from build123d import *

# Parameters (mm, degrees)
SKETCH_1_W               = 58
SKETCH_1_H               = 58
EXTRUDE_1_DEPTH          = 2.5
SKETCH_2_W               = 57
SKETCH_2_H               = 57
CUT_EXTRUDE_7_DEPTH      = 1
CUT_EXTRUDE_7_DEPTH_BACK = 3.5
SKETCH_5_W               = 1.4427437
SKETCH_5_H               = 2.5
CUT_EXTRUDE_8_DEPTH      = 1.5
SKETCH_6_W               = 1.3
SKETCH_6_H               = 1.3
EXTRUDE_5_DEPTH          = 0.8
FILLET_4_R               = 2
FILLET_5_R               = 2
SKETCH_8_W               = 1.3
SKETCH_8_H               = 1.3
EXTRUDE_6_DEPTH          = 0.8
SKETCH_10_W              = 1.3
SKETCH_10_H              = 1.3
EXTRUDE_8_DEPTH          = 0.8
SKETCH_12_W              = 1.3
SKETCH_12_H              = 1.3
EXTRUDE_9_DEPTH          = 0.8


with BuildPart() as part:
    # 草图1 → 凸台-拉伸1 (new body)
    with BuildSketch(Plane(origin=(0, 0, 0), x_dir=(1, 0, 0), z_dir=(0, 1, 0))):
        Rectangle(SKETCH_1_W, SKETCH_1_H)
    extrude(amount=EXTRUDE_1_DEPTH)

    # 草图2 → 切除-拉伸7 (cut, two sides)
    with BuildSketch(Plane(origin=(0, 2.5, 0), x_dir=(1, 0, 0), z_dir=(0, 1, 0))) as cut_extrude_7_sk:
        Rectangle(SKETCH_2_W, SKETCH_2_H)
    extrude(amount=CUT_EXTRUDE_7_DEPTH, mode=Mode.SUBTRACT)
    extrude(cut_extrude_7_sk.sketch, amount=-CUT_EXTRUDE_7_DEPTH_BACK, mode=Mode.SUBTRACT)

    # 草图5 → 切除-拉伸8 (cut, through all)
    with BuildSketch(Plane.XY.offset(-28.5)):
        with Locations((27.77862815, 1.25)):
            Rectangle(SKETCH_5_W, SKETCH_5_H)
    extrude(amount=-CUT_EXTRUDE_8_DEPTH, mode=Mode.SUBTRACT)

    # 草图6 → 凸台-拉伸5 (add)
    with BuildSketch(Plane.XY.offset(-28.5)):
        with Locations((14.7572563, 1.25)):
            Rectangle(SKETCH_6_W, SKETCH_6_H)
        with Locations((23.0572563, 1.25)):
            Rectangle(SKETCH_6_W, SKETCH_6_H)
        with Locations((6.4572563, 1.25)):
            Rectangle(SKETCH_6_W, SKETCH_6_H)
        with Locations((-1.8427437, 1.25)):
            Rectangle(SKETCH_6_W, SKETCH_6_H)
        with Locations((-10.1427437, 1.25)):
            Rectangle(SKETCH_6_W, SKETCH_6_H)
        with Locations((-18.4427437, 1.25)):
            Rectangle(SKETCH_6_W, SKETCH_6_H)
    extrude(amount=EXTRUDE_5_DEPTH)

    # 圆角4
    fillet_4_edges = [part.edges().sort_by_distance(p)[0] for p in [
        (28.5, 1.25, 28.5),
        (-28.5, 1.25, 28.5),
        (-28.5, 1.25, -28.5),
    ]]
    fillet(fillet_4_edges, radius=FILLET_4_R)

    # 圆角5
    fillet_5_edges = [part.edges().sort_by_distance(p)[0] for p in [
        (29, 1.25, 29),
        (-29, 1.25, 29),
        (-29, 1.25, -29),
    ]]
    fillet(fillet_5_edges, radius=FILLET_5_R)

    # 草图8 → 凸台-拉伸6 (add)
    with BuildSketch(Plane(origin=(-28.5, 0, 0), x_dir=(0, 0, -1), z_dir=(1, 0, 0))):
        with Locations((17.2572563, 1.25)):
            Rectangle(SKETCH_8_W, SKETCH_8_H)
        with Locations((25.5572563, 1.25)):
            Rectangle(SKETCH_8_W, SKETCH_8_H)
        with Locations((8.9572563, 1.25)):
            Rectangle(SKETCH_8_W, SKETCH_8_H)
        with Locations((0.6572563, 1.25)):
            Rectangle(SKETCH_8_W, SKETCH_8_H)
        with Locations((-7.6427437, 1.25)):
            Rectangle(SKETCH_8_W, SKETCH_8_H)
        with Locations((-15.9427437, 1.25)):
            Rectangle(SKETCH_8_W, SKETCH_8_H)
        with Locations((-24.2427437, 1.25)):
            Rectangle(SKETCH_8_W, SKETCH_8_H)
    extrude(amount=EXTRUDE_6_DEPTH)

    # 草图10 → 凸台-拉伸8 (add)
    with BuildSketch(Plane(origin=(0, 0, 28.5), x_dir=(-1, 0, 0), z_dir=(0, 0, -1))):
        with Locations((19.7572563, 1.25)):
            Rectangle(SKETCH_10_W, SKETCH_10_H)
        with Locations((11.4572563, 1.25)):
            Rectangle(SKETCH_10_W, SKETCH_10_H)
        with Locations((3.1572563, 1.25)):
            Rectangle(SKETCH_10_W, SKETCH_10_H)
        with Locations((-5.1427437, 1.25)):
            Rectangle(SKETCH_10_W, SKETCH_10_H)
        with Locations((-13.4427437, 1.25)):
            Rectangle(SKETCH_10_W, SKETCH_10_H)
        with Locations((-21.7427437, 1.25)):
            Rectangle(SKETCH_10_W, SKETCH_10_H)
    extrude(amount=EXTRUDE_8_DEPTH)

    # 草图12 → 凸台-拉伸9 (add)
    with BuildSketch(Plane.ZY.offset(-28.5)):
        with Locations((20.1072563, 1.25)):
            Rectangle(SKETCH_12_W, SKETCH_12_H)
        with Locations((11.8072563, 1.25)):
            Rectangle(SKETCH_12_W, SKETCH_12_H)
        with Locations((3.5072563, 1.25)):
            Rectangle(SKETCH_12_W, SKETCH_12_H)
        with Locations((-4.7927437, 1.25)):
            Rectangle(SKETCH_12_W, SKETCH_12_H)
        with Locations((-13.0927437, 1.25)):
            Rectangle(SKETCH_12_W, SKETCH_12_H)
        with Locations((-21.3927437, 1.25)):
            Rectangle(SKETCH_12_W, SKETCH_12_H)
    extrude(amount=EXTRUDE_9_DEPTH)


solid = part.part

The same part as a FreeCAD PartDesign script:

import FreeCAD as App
import Part
import Sketcher
from FreeCAD import Vector
Q = App.Units.Quantity


def edges_at(feature, points):
    """Names of the edges that pass closest to the given points."""
    edges = feature.Shape.Edges
    near = lambda p: min(range(len(edges)), key=lambda i: edges[i].distToShape(Part.Vertex(*p))[0])
    return sorted({f"Edge{near(p) + 1}" for p in points})


def add_polygon(sketch, points):
    """Adds a closed chain of lines whose ends are joined by coincident constraints."""
    first, n = sketch.GeometryCount, len(points)
    for a, b in zip(points, points[1:] + points[:1]):
        sketch.addGeometry(Part.LineSegment(App.Vector(*a, 0), App.Vector(*b, 0)), False)
    for i in range(n):
        sketch.addConstraint(Sketcher.Constraint("Coincident", first + i, 2, first + (i + 1) % n, 1))

doc = App.newDocument("Part")
body = doc.addObject("PartDesign::Body", "Body")

sketch1 = body.newObject("Sketcher::SketchObject", "Sketch")
sketch1.AttachmentSupport = (doc.getObject("XZ_Plane"), [""])
sketch1.MapMode = "FlatFace"
add_polygon(sketch1, [(-29, -29), (-29, 29), (29, 29), (29, -29)])
sketch1.addConstraint([
    Sketcher.Constraint("Vertical", 0),
    Sketcher.Constraint("Horizontal", 1),
    Sketcher.Constraint("Vertical", 2),
    Sketcher.Constraint("Horizontal", 3),
    Sketcher.Constraint("Symmetric", 0, 2, 2, 2, -1, 1),
    Sketcher.Constraint("Equal", 3, 0),
    Sketcher.Constraint("DistanceX", 1, 1, 1, 2, Q("58 mm")),
])
pad1 = body.newObject("PartDesign::Pad", "Pad")
pad1.Profile = sketch1
pad1.Length = 2.5
pad1.Reversed = True

sketch2 = body.newObject("Sketcher::SketchObject", "Sketch001")
sketch2.AttachmentSupport = (doc.getObject("XZ_Plane"), [""])
sketch2.MapMode = "FlatFace"
sketch2.AttachmentOffset = App.Placement(Vector(0, 0, -2.5), App.Rotation())
add_polygon(sketch2, [(-28.5, -28.5), (-28.5, 28.5), (28.5, 28.5), (28.5, -28.5)])
sketch2.addConstraint([
    Sketcher.Constraint("Vertical", 0),
    Sketcher.Constraint("Horizontal", 1),
    Sketcher.Constraint("Vertical", 2),
    Sketcher.Constraint("Horizontal", 3),
    Sketcher.Constraint("Symmetric", 0, 2, 2, 2, -1, 1),
    Sketcher.Constraint("Equal", 3, 0),
    Sketcher.Constraint("DistanceX", 1, 1, 1, 2, Q("57 mm")),
])
pocket1 = body.newObject("PartDesign::Pocket", "Pocket")
pocket1.Profile = sketch2
pocket1.Type = "ThroughAll"
pocket1.Midplane = True

sketch3 = body.newObject("Sketcher::SketchObject", "Sketch002")
sketch3.AttachmentSupport = (doc.getObject("XY_Plane"), [""])
sketch3.MapMode = "FlatFace"
sketch3.AttachmentOffset = App.Placement(Vector(0, 0, -28.5), App.Rotation())
add_polygon(sketch3, [(27.057256, 2.5), (27.057256, 0), (28.5, 0), (28.5, 2.5)])
sketch3.addConstraint([
    Sketcher.Constraint("Vertical", 0),
    Sketcher.Constraint("Horizontal", 1),
    Sketcher.Constraint("Vertical", 2),
    Sketcher.Constraint("Horizontal", 3),
    Sketcher.Constraint("PointOnObject", 0, 2, -1),
    Sketcher.Constraint("DistanceY", 0, 2, 0, 1, Q("2.5 mm")),
    Sketcher.Constraint("DistanceX", -1, 1, 1, 2, Q("28.5 mm")),
    Sketcher.Constraint("DistanceX", 1, 1, 1, 2, Q("1.442744 mm")),
])
pocket2 = body.newObject("PartDesign::Pocket", "Pocket001")
pocket2.Profile = sketch3
pocket2.Type = "ThroughAll"

sketch4 = body.newObject("Sketcher::SketchObject", "Sketch003")
sketch4.AttachmentSupport = (doc.getObject("XY_Plane"), [""])
sketch4.MapMode = "FlatFace"
sketch4.AttachmentOffset = App.Placement(Vector(0, 0, -28.5), App.Rotation())
add_polygon(sketch4, [(14.107256, 1.9), (14.107256, 0.6), (15.407256, 0.6), (15.407256, 1.9)])
add_polygon(sketch4, [(22.407256, 1.9), (22.407256, 0.6), (23.707256, 0.6), (23.707256, 1.9)])
add_polygon(sketch4, [(5.807256, 1.9), (5.807256, 0.6), (7.107256, 0.6), (7.107256, 1.9)])
add_polygon(sketch4, [(-2.492744, 1.9), (-2.492744, 0.6), (-1.192744, 0.6), (-1.192744, 1.9)])
add_polygon(sketch4, [(-10.792744, 1.9), (-10.792744, 0.6), (-9.492744, 0.6), (-9.492744, 1.9)])
add_polygon(sketch4, [(-19.092744, 1.9), (-19.092744, 0.6), (-17.792744, 0.6), (-17.792744, 1.9)])
sketch4.addConstraint([
    Sketcher.Constraint("Vertical", 0),
    Sketcher.Constraint("Horizontal", 1),
    Sketcher.Constraint("Vertical", 2),
    Sketcher.Constraint("Horizontal", 3),
    Sketcher.Constraint("Vertical", 4),
    Sketcher.Constraint("Horizontal", 5),
    Sketcher.Constraint("Vertical", 6),
    Sketcher.Constraint("Horizontal", 7),
    Sketcher.Constraint("Vertical", 8),
    Sketcher.Constraint("Horizontal", 9),
    Sketcher.Constraint("Vertical", 10),
    Sketcher.Constraint("Horizontal", 11),
    Sketcher.Constraint("Vertical", 12),
    Sketcher.Constraint("Horizontal", 13),
    Sketcher.Constraint("Vertical", 14),
    Sketcher.Constraint("Horizontal", 15),
    Sketcher.Constraint("Vertical", 16),
    Sketcher.Constraint("Horizontal", 17),
    Sketcher.Constraint("Vertical", 18),
    Sketcher.Constraint("Horizontal", 19),
    Sketcher.Constraint("Vertical", 20),
    Sketcher.Constraint("Horizontal", 21),
    Sketcher.Constraint("Vertical", 22),
    Sketcher.Constraint("Horizontal", 23),
    Sketcher.Constraint("Horizontal", 1, 2, 4, 2),
    Sketcher.Constraint("Horizontal", 3, 2, 6, 2),
    Sketcher.Constraint("Horizontal", 5, 2, 8, 2),
    Sketcher.Constraint("Horizontal", 7, 2, 10, 2),
    Sketcher.Constraint("Horizontal", 9, 2, 12, 2),
    Sketcher.Constraint("Horizontal", 11, 2, 14, 2),
    Sketcher.Constraint("Horizontal", 13, 2, 16, 2),
    Sketcher.Constraint("Horizontal", 15, 2, 18, 2),
    Sketcher.Constraint("Horizontal", 17, 2, 20, 2),
    Sketcher.Constraint("Horizontal", 19, 2, 22, 2),
    Sketcher.Constraint("Equal", 3, 5),
    Sketcher.Constraint("Equal", 7, 9),
    Sketcher.Constraint("Equal", 11, 13),
    Sketcher.Constraint("Equal", 15, 17),
    Sketcher.Constraint("Equal", 19, 21),
    Sketcher.Constraint("Equal", 23, 0),
    Sketcher.Constraint("DistanceX", 1, 1, 1, 2, Q("1.3 mm")),
    Sketcher.Constraint("DistanceX", 1, 2, 4, 2, Q("7 mm")),
    Sketcher.Constraint("DistanceX", 9, 2, 0, 2, Q("7 mm")),
    Sketcher.Constraint("DistanceX", 13, 2, 8, 2, Q("7 mm")),
    Sketcher.Constraint("DistanceX", 17, 2, 12, 2, Q("7 mm")),
    Sketcher.Constraint("DistanceX", 21, 2, 16, 2, Q("7 mm")),
    Sketcher.Constraint("DistanceY", -1, 1, 0, 2, Q("0.6 mm")),
    Sketcher.Constraint("DistanceX", -1, 1, 0, 2, Q("14.107256 mm")),
])
pad2 = body.newObject("PartDesign::Pad", "Pad001")
pad2.Profile = sketch4
pad2.Length = 0.8
doc.recompute()

fillet = body.newObject("PartDesign::Fillet", "Fillet")
fillet.Base = (pad2, edges_at(pad2, [(28.5, 1.25, 28.5), (-28.5, 1.25, 28.5), (-28.5, 1.25, -28.5)]))
fillet.Radius = 2
doc.recompute()

fillet2 = body.newObject("PartDesign::Fillet", "Fillet001")
fillet2.Base = (fillet, edges_at(fillet, [(29, 1.25, 29), (-29, 1.25, 29), (-29, 1.25, -29)]))
fillet2.Radius = 2

sketch5 = body.newObject("Sketcher::SketchObject", "Sketch004")
sketch5.AttachmentSupport = (doc.getObject("YZ_Plane"), [""])
sketch5.MapMode = "FlatFace"
sketch5.AttachmentOffset = App.Placement(Vector(0, 0, -28.5), App.Rotation())
add_polygon(sketch5, [(1.9, -16.607256), (0.6, -16.607256), (0.6, -17.907256), (1.9, -17.907256)])
add_polygon(sketch5, [(1.9, -24.907256), (0.6, -24.907256), (0.6, -26.207256), (1.9, -26.207256)])
add_polygon(sketch5, [(1.9, -8.307256), (0.6, -8.307256), (0.6, -9.607256), (1.9, -9.607256)])
add_polygon(sketch5, [(1.9, -0.007256), (0.6, -0.007256), (0.6, -1.307256), (1.9, -1.307256)])
add_polygon(sketch5, [(1.9, 8.292744), (0.6, 8.292744), (0.6, 6.992744), (1.9, 6.992744)])
add_polygon(sketch5, [(1.9, 16.592744), (0.6, 16.592744), (0.6, 15.292744), (1.9, 15.292744)])
add_polygon(sketch5, [(1.9, 24.892744), (0.6, 24.892744), (0.6, 23.592744), (1.9, 23.592744)])
sketch5.addConstraint([
    Sketcher.Constraint("Horizontal", 0),
    Sketcher.Constraint("Vertical", 1),
    Sketcher.Constraint("Horizontal", 2),
    Sketcher.Constraint("Vertical", 3),
    Sketcher.Constraint("Horizontal", 4),
    Sketcher.Constraint("Vertical", 5),
    Sketcher.Constraint("Horizontal", 6),
    Sketcher.Constraint("Vertical", 7),
    Sketcher.Constraint("Horizontal", 8),
    Sketcher.Constraint("Vertical", 9),
    Sketcher.Constraint("Horizontal", 10),
    Sketcher.Constraint("Vertical", 11),
    Sketcher.Constraint("Horizontal", 12),
    Sketcher.Constraint("Vertical", 13),
    Sketcher.Constraint("Horizontal", 14),
    Sketcher.Constraint("Vertical", 15),
    Sketcher.Constraint("Horizontal", 16),
    Sketcher.Constraint("Vertical", 17),
    Sketcher.Constraint("Horizontal", 18),
    Sketcher.Constraint("Vertical", 19),
    Sketcher.Constraint("Horizontal", 20),
    Sketcher.Constraint("Vertical", 21),
    Sketcher.Constraint("Horizontal", 22),
    Sketcher.Constraint("Vertical", 23),
    Sketcher.Constraint("Horizontal", 24),
    Sketcher.Constraint("Vertical", 25),
    Sketcher.Constraint("Horizontal", 26),
    Sketcher.Constraint("Vertical", 27),
    Sketcher.Constraint("Vertical", 1, 2, 4, 2),
    Sketcher.Constraint("Vertical", 3, 2, 6, 2),
    Sketcher.Constraint("Vertical", 5, 2, 8, 2),
    Sketcher.Constraint("Vertical", 7, 2, 10, 2),
    Sketcher.Constraint("Vertical", 9, 2, 12, 2),
    Sketcher.Constraint("Vertical", 11, 2, 14, 2),
    Sketcher.Constraint("Vertical", 13, 2, 16, 2),
    Sketcher.Constraint("Vertical", 15, 2, 18, 2),
    Sketcher.Constraint("Vertical", 17, 2, 20, 2),
    Sketcher.Constraint("Vertical", 19, 2, 22, 2),
    Sketcher.Constraint("Vertical", 21, 2, 24, 2),
    Sketcher.Constraint("Vertical", 23, 2, 26, 2),
    Sketcher.Constraint("Equal", 26, 1),
    Sketcher.Constraint("Equal", 3, 5),
    Sketcher.Constraint("Equal", 7, 9),
    Sketcher.Constraint("Equal", 11, 13),
    Sketcher.Constraint("Equal", 15, 17),
    Sketcher.Constraint("Equal", 19, 21),
    Sketcher.Constraint("Equal", 23, 25),
    Sketcher.Constraint("DistanceX", 0, 2, 0, 1, Q("1.3 mm")),
    Sketcher.Constraint("DistanceY", 4, 2, 1, 2, Q("7 mm")),
    Sketcher.Constraint("DistanceY", 0, 2, 9, 2, Q("7 mm")),
    Sketcher.Constraint("DistanceY", 8, 2, 13, 2, Q("7 mm")),
    Sketcher.Constraint("DistanceY", 12, 2, 17, 2, Q("7 mm")),
    Sketcher.Constraint("DistanceY", 16, 2, 21, 2, Q("7 mm")),
    Sketcher.Constraint("DistanceY", 20, 2, 25, 2, Q("7 mm")),
    Sketcher.Constraint("DistanceX", -1, 1, 0, 2, Q("0.6 mm")),
    Sketcher.Constraint("DistanceY", 0, 2, -1, 1, Q("16.607256 mm")),
])
pad3 = body.newObject("PartDesign::Pad", "Pad002")
pad3.Profile = sketch5
pad3.Length = 0.8

sketch6 = body.newObject("Sketcher::SketchObject", "Sketch005")
sketch6.AttachmentSupport = (doc.getObject("XY_Plane"), [""])
sketch6.MapMode = "FlatFace"
sketch6.AttachmentOffset = App.Placement(Vector(0, 0, 28.5), App.Rotation())
add_polygon(sketch6, [(-19.107256, 1.9), (-19.107256, 0.6), (-20.407256, 0.6), (-20.407256, 1.9)])
add_polygon(sketch6, [(-10.807256, 1.9), (-10.807256, 0.6), (-12.107256, 0.6), (-12.107256, 1.9)])
add_polygon(sketch6, [(-2.507256, 1.9), (-2.507256, 0.6), (-3.807256, 0.6), (-3.807256, 1.9)])
add_polygon(sketch6, [(5.792744, 1.9), (5.792744, 0.6), (4.492744, 0.6), (4.492744, 1.9)])
add_polygon(sketch6, [(14.092744, 1.9), (14.092744, 0.6), (12.792744, 0.6), (12.792744, 1.9)])
add_polygon(sketch6, [(22.392744, 1.9), (22.392744, 0.6), (21.092744, 0.6), (21.092744, 1.9)])
sketch6.addConstraint([
    Sketcher.Constraint("Vertical", 0),
    Sketcher.Constraint("Horizontal", 1),
    Sketcher.Constraint("Vertical", 2),
    Sketcher.Constraint("Horizontal", 3),
    Sketcher.Constraint("Vertical", 4),
    Sketcher.Constraint("Horizontal", 5),
    Sketcher.Constraint("Vertical", 6),
    Sketcher.Constraint("Horizontal", 7),
    Sketcher.Constraint("Vertical", 8),
    Sketcher.Constraint("Horizontal", 9),
    Sketcher.Constraint("Vertical", 10),
    Sketcher.Constraint("Horizontal", 11),
    Sketcher.Constraint("Vertical", 12),
    Sketcher.Constraint("Horizontal", 13),
    Sketcher.Constraint("Vertical", 14),
    Sketcher.Constraint("Horizontal", 15),
    Sketcher.Constraint("Vertical", 16),
    Sketcher.Constraint("Horizontal", 17),
    Sketcher.Constraint("Vertical", 18),
    Sketcher.Constraint("Horizontal", 19),
    Sketcher.Constraint("Vertical", 20),
    Sketcher.Constraint("Horizontal", 21),
    Sketcher.Constraint("Vertical", 22),
    Sketcher.Constraint("Horizontal", 23),
    Sketcher.Constraint("Horizontal", 1, 2, 4, 2),
    Sketcher.Constraint("Horizontal", 3, 2, 6, 2),
    Sketcher.Constraint("Horizontal", 5, 2, 8, 2),
    Sketcher.Constraint("Horizontal", 7, 2, 10, 2),
    Sketcher.Constraint("Horizontal", 9, 2, 12, 2),
    Sketcher.Constraint("Horizontal", 11, 2, 14, 2),
    Sketcher.Constraint("Horizontal", 13, 2, 16, 2),
    Sketcher.Constraint("Horizontal", 15, 2, 18, 2),
    Sketcher.Constraint("Horizontal", 17, 2, 20, 2),
    Sketcher.Constraint("Horizontal", 19, 2, 22, 2),
    Sketcher.Constraint("Equal", 3, 5),
    Sketcher.Constraint("Equal", 7, 9),
    Sketcher.Constraint("Equal", 11, 13),
    Sketcher.Constraint("Equal", 15, 17),
    Sketcher.Constraint("Equal", 19, 21),
    Sketcher.Constraint("Equal", 23, 0),
    Sketcher.Constraint("DistanceX", 1, 2, 1, 1, Q("1.3 mm")),
    Sketcher.Constraint("DistanceX", 0, 2, 5, 2, Q("7 mm")),
    Sketcher.Constraint("DistanceX", 4, 2, 9, 2, Q("7 mm")),
    Sketcher.Constraint("DistanceX", 8, 2, 13, 2, Q("7 mm")),
    Sketcher.Constraint("DistanceX", 12, 2, 17, 2, Q("7 mm")),
    Sketcher.Constraint("DistanceX", 16, 2, 21, 2, Q("7 mm")),
    Sketcher.Constraint("DistanceY", -1, 1, 0, 2, Q("0.6 mm")),
    Sketcher.Constraint("DistanceX", 0, 2, -1, 1, Q("19.107256 mm")),
])
pad4 = body.newObject("PartDesign::Pad", "Pad003")
pad4.Profile = sketch6
pad4.Length = 0.8
pad4.Reversed = True

sketch7 = body.newObject("Sketcher::SketchObject", "Sketch006")
sketch7.AttachmentSupport = (doc.getObject("YZ_Plane"), [""])
sketch7.MapMode = "FlatFace"
sketch7.AttachmentOffset = App.Placement(Vector(0, 0, 28.5), App.Rotation())
add_polygon(sketch7, [(1.9, 19.457256), (0.6, 19.457256), (0.6, 20.757256), (1.9, 20.757256)])
add_polygon(sketch7, [(1.9, 11.157256), (0.6, 11.157256), (0.6, 12.457256), (1.9, 12.457256)])
add_polygon(sketch7, [(1.9, 2.857256), (0.6, 2.857256), (0.6, 4.157256), (1.9, 4.157256)])
add_polygon(sketch7, [(1.9, -5.442744), (0.6, -5.442744), (0.6, -4.142744), (1.9, -4.142744)])
add_polygon(sketch7, [(1.9, -13.742744), (0.6, -13.742744), (0.6, -12.442744), (1.9, -12.442744)])
add_polygon(sketch7, [(1.9, -22.042744), (0.6, -22.042744), (0.6, -20.742744), (1.9, -20.742744)])
sketch7.addConstraint([
    Sketcher.Constraint("Horizontal", 0),
    Sketcher.Constraint("Vertical", 1),
    Sketcher.Constraint("Horizontal", 2),
    Sketcher.Constraint("Vertical", 3),
    Sketcher.Constraint("Horizontal", 4),
    Sketcher.Constraint("Vertical", 5),
    Sketcher.Constraint("Horizontal", 6),
    Sketcher.Constraint("Vertical", 7),
    Sketcher.Constraint("Horizontal", 8),
    Sketcher.Constraint("Vertical", 9),
    Sketcher.Constraint("Horizontal", 10),
    Sketcher.Constraint("Vertical", 11),
    Sketcher.Constraint("Horizontal", 12),
    Sketcher.Constraint("Vertical", 13),
    Sketcher.Constraint("Horizontal", 14),
    Sketcher.Constraint("Vertical", 15),
    Sketcher.Constraint("Horizontal", 16),
    Sketcher.Constraint("Vertical", 17),
    Sketcher.Constraint("Horizontal", 18),
    Sketcher.Constraint("Vertical", 19),
    Sketcher.Constraint("Horizontal", 20),
    Sketcher.Constraint("Vertical", 21),
    Sketcher.Constraint("Horizontal", 22),
    Sketcher.Constraint("Vertical", 23),
    Sketcher.Constraint("Vertical", 1, 2, 4, 2),
    Sketcher.Constraint("Vertical", 3, 2, 6, 2),
    Sketcher.Constraint("Vertical", 5, 2, 8, 2),
    Sketcher.Constraint("Vertical", 7, 2, 10, 2),
    Sketcher.Constraint("Vertical", 9, 2, 12, 2),
    Sketcher.Constraint("Vertical", 11, 2, 14, 2),
    Sketcher.Constraint("Vertical", 13, 2, 16, 2),
    Sketcher.Constraint("Vertical", 15, 2, 18, 2),
    Sketcher.Constraint("Vertical", 17, 2, 20, 2),
    Sketcher.Constraint("Vertical", 19, 2, 22, 2),
    Sketcher.Constraint("Equal", 22, 1),
    Sketcher.Constraint("Equal", 3, 5),
    Sketcher.Constraint("Equal", 7, 9),
    Sketcher.Constraint("Equal", 11, 13),
    Sketcher.Constraint("Equal", 15, 17),
    Sketcher.Constraint("Equal", 19, 21),
    Sketcher.Constraint("DistanceX", 0, 2, 0, 1, Q("1.3 mm")),
    Sketcher.Constraint("DistanceY", 5, 2, 0, 2, Q("7 mm")),
    Sketcher.Constraint("DistanceY", 9, 2, 4, 2, Q("7 mm")),
    Sketcher.Constraint("DistanceY", 13, 2, 8, 2, Q("7 mm")),
    Sketcher.Constraint("DistanceY", 17, 2, 12, 2, Q("7 mm")),
    Sketcher.Constraint("DistanceY", 21, 2, 16, 2, Q("7 mm")),
    Sketcher.Constraint("DistanceX", -1, 1, 0, 2, Q("0.6 mm")),
    Sketcher.Constraint("DistanceY", -1, 1, 0, 2, Q("19.457256 mm")),
])
pad5 = body.newObject("PartDesign::Pad", "Pad004")
pad5.Profile = sketch7
pad5.Length = 0.8
pad5.Reversed = True

doc.recompute()
